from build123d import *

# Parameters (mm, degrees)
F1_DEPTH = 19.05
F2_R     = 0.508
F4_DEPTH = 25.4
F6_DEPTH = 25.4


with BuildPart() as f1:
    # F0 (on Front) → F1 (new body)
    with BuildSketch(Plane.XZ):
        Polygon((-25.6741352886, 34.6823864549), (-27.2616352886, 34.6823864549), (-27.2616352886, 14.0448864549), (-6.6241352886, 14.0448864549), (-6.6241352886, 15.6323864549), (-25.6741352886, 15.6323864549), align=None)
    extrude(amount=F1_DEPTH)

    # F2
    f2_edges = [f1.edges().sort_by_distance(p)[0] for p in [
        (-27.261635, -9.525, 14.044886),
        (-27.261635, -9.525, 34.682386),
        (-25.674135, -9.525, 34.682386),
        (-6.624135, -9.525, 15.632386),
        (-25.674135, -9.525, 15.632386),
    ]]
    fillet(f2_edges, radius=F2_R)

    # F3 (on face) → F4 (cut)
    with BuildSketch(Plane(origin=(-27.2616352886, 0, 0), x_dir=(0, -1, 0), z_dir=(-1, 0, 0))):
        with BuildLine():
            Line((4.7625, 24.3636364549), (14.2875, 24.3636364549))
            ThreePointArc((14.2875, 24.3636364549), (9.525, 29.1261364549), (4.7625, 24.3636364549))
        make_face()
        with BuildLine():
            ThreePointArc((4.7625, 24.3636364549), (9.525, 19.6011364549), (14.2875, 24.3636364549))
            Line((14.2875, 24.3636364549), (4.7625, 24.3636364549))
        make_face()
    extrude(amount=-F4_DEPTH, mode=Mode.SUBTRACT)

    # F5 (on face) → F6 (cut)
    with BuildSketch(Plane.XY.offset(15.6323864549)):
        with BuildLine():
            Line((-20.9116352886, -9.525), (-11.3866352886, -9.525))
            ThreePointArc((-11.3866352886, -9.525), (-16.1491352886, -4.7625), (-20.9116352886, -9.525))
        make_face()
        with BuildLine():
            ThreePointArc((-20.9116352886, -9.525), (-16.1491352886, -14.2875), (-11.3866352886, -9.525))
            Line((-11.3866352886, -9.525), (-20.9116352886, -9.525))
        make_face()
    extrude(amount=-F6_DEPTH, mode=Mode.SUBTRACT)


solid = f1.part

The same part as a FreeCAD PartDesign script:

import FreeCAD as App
import Part
import Sketcher
Q = App.Units.Quantity


def edges_at(feature, points):
    """Names of the edges that pass closest to the given points."""
    edges = feature.Shape.Edges
    near = lambda p: min(range(len(edges)), key=lambda i: edges[i].distToShape(Part.Vertex(*p))[0])
    return sorted({f"Edge{near(p) + 1}" for p in points})


def add_polygon(sketch, points):
    """Adds a closed chain of lines whose ends are joined by coincident constraints."""
    first, n = sketch.GeometryCount, len(points)
    for a, b in zip(points, points[1:] + points[:1]):
        sketch.addGeometry(Part.LineSegment(App.Vector(*a, 0), App.Vector(*b, 0)), False)
    for i in range(n):
        sketch.addConstraint(Sketcher.Constraint("Coincident", first + i, 2, first + (i + 1) % n, 1))

doc = App.newDocument("Part")
body = doc.addObject("PartDesign::Body", "Body")

sketch1 = body.newObject("Sketcher::SketchObject", "Sketch")
sketch1.AttachmentSupport = (doc.getObject("XZ_Plane"), [""])
sketch1.MapMode = "FlatFace"
add_polygon(sketch1, [(-25.7, 34.7), (-27.3, 34.7), (-27.3, 14), (-6.6, 14), (-6.6, 15.6), (-25.7, 15.6)])
sketch1.addConstraint(Sketcher.Constraint("Horizontal", 0))
sketch1.addConstraint(Sketcher.Constraint("Vertical", 1))
sketch1.addConstraint(Sketcher.Constraint("Horizontal", 2))
sketch1.addConstraint(Sketcher.Constraint("Vertical", 3))
sketch1.addConstraint(Sketcher.Constraint("Horizontal", 4))
sketch1.addConstraint(Sketcher.Constraint("Vertical", 5))
sketch1.addConstraint(Sketcher.Constraint("Equal", 2, 1))
sketch1.addConstraint(Sketcher.Constraint("Equal", 0, 3))
sketch1.addConstraint(Sketcher.Constraint("DistanceX", 4, 2, 4, 1, Q("0.75 in")))
sketch1.addConstraint(Sketcher.Constraint("DistanceX", 0, 2, 0, 1, Q("0.0625 in")))
sketch1.addConstraint(Sketcher.Constraint("DistanceX", 0, 2, -1, 1, 27.261635))
sketch1.addConstraint(Sketcher.Constraint("DistanceY", -1, 1, 0, 2, 34.682386))
pad1 = body.newObject("PartDesign::Pad", "Pad")
pad1.Profile = sketch1
pad1.Length = Q("0.75 in")
doc.recompute()

fillet = body.newObject("PartDesign::Fillet", "Fillet")
fillet.Base = (pad1, edges_at(pad1, [
    (-27.262, -9.525, 14.045),
    (-27.262, -9.525, 34.682),
    (-25.674, -9.525, 34.682),
    (-6.624, -9.525, 15.632),
    (-25.674, -9.525, 15.632),
]))
fillet.Radius = Q("0.02 in")

sketch2 = body.newObject("Sketcher::SketchObject", "Sketch001")
sketch2.AttachmentSupport = (doc.getObject("YZ_Plane"), [""])
sketch2.MapMode = "FlatFace"
sketch2.AttachmentOffset = App.Placement(App.Vector(0, 0, -27.261635), App.Rotation())
sketch2.addGeometry(Part.Circle(App.Vector(-9.5, 24.4, 0), App.Vector(0, 0, 1), 4.8), False)
sketch2.addConstraint(Sketcher.Constraint("Diameter", 0, Q("0.375 in")))
sketch2.addConstraint(Sketcher.Constraint("DistanceX", 0, 3, -1, 1, Q("0.375 in")))
sketch2.addConstraint(Sketcher.Constraint("DistanceY", -1, 1, 0, 3, 24.363636))
pocket1 = body.newObject("PartDesign::Pocket", "Pocket")
pocket1.Profile = sketch2
pocket1.Length = Q("1 in")
pocket1.Reversed = True

sketch3 = body.newObject("Sketcher::SketchObject", "Sketch002")
sketch3.AttachmentSupport = (doc.getObject("XY_Plane"), [""])
sketch3.MapMode = "FlatFace"
sketch3.AttachmentOffset = App.Placement(App.Vector(0, 0, 15.632386), App.Rotation())
sketch3.addGeometry(Part.Circle(App.Vector(-16.1, -9.5, 0), App.Vector(0, 0, 1), 4.8), False)
sketch3.addConstraint(Sketcher.Constraint("Diameter", 0, Q("0.375 in")))
sketch3.addConstraint(Sketcher.Constraint("DistanceY", 0, 3, -1, 1, Q("0.375 in")))
sketch3.addConstraint(Sketcher.Constraint("DistanceX", 0, 3, -1, 1, 16.149135))
pocket2 = body.newObject("PartDesign::Pocket", "Pocket001")
pocket2.Profile = sketch3
pocket2.Length = Q("1 in")

doc.recompute()
